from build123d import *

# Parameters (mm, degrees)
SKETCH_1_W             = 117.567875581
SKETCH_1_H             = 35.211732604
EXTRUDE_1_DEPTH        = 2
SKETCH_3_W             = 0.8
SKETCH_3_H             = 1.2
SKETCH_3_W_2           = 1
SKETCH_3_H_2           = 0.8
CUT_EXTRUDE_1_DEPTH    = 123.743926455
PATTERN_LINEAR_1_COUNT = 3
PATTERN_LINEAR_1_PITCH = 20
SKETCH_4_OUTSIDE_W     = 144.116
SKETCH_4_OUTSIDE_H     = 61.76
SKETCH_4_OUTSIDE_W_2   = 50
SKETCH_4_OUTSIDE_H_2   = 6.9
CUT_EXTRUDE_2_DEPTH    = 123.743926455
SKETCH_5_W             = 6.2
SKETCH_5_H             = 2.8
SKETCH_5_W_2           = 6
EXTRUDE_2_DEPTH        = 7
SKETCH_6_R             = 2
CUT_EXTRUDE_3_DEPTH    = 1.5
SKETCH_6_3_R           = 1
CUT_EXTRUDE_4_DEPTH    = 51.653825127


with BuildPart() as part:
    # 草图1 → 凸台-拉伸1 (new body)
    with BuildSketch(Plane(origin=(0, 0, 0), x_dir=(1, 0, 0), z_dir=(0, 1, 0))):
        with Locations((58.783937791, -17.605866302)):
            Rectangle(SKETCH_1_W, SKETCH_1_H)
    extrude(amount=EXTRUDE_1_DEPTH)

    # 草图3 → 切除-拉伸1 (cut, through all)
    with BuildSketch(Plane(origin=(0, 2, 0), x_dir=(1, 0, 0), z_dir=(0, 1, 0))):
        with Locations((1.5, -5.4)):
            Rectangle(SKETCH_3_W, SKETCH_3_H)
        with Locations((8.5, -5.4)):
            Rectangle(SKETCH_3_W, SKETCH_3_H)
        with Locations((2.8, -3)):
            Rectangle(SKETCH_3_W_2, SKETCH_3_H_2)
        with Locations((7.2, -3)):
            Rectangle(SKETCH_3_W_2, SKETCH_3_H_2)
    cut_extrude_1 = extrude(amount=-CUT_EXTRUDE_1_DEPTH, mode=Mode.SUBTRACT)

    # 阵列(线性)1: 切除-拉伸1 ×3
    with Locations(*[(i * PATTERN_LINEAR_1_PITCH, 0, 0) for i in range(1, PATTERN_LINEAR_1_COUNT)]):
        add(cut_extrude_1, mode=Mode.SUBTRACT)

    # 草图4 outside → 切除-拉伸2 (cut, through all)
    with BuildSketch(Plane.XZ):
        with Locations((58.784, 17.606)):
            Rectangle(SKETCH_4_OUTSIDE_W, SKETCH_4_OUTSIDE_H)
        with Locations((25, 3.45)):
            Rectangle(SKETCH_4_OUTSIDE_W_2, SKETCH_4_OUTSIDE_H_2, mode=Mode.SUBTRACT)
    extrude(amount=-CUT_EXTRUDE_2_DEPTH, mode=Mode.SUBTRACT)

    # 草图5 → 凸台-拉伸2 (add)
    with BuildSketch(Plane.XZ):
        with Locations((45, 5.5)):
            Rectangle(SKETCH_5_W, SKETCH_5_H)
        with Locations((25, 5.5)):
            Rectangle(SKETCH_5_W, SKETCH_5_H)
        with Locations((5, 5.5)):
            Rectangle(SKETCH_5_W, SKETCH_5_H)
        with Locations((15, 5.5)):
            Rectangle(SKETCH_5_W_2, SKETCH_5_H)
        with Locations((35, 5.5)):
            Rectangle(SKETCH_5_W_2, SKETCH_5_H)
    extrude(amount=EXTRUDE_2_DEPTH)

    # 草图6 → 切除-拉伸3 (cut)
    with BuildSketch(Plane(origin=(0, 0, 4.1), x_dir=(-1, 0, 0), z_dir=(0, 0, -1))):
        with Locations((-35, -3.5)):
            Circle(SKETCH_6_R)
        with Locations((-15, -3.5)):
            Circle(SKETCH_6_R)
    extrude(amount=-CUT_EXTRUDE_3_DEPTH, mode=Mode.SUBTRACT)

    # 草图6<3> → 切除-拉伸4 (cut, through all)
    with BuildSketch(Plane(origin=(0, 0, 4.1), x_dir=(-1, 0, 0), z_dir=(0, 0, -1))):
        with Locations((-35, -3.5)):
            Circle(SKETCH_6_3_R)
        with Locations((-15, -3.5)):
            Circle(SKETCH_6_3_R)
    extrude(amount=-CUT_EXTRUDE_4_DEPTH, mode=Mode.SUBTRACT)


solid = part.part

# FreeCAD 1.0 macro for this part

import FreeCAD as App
import Part
import Sketcher
from FreeCAD import Vector
Q = App.Units.Quantity


def add_polygon(sketch, points):
    """Adds a closed chain of lines whose ends are joined by coincident constraints."""
    first, n = sketch.GeometryCount, len(points)
    for a, b in zip(points, points[1:] + points[:1]):
        sketch.addGeometry(Part.LineSegment(App.Vector(*a, 0), App.Vector(*b, 0)), False)
    for i in range(n):
        sketch.addConstraint(Sketcher.Constraint("Coincident", first + i, 2, first + (i + 1) % n, 1))

doc = App.newDocument("Part")
body = doc.addObject("PartDesign::Body", "Body")

sketch1 = body.newObject("Sketcher::SketchObject", "Sketch")
sketch1.AttachmentSupport = (doc.getObject("XZ_Plane"), [""])
sketch1.MapMode = "FlatFace"
add_polygon(sketch1, [(0, 0), (0, 35), (118, 35), (118, 0)])
sketch1.addConstraint([
    Sketcher.Constraint("Vertical", 0),
    Sketcher.Constraint("Horizontal", 1),
    Sketcher.Constraint("Vertical", 2),
    Sketcher.Constraint("Horizontal", 3),
    Sketcher.Constraint("Coincident", 3, 2, -1, 1),
    Sketcher.Constraint("DistanceX", 1, 1, 1, 2, Q("117.567876 mm")),
    Sketcher.Constraint("DistanceY", 0, 1, 0, 2, Q("35.211733 mm")),
])
pad1 = body.newObject("PartDesign::Pad", "Pad")
pad1.Profile = sketch1
pad1.Length = 2
pad1.Reversed = True

sketch2 = body.newObject("Sketcher::SketchObject", "Sketch001")
sketch2.AttachmentSupport = (doc.getObject("XZ_Plane"), [""])
sketch2.MapMode = "FlatFace"
sketch2.AttachmentOffset = App.Placement(Vector(0, 0, -2), App.Rotation())
add_polygon(sketch2, [(1.1, 4.8), (1.1, 6), (1.9, 6), (1.9, 4.8)])
add_polygon(sketch2, [(8.1, 4.8), (8.1, 6), (8.9, 6), (8.9, 4.8)])
add_polygon(sketch2, [(2.3, 2.6), (2.3, 3.4), (3.3, 3.4), (3.3, 2.6)])
add_polygon(sketch2, [(6.7, 2.6), (6.7, 3.4), (7.7, 3.4), (7.7, 2.6)])
sketch2.addConstraint([
    Sketcher.Constraint("Vertical", 0),
    Sketcher.Constraint("Horizontal", 1),
    Sketcher.Constraint("Vertical", 2),
    Sketcher.Constraint("Horizontal", 3),
    Sketcher.Constraint("Vertical", 4),
    Sketcher.Constraint("Horizontal", 5),
    Sketcher.Constraint("Vertical", 6),
    Sketcher.Constraint("Horizontal", 7),
    Sketcher.Constraint("Vertical", 8),
    Sketcher.Constraint("Horizontal", 9),
    Sketcher.Constraint("Vertical", 10),
    Sketcher.Constraint("Horizontal", 11),
    Sketcher.Constraint("Vertical", 12),
    Sketcher.Constraint("Horizontal", 13),
    Sketcher.Constraint("Vertical", 14),
    Sketcher.Constraint("Horizontal", 15),
    Sketcher.Constraint("Horizontal", 1, 2, 4, 2),
    Sketcher.Constraint("Horizontal", 3, 2, 6, 2),
    Sketcher.Constraint("Horizontal", 9, 2, 12, 2),
    Sketcher.Constraint("Horizontal", 11, 2, 14, 2),
    Sketcher.Constraint("Equal", 3, 5),
    Sketcher.Constraint("Equal", 11, 13),
    Sketcher.Constraint("Equal", 7, 8),
    Sketcher.Constraint("DistanceX", 9, 1, 9, 2, Q("1 mm")),
    Sketcher.Constraint("DistanceX", 1, 1, 1, 2, Q("0.8 mm")),
    Sketcher.Constraint("DistanceY", 0, 1, 0, 2, Q("1.2 mm")),
    Sketcher.Constraint("DistanceY", -1, 1, 0, 2, Q("6 mm")),
    Sketcher.Constraint("DistanceX", 0, 2, 4, 2, Q("7 mm")),
    Sketcher.Constraint("DistanceX", -1, 1, 0, 2, Q("1.1 mm")),
    Sketcher.Constraint("DistanceX", -1, 1, 8, 2, Q("2.3 mm")),
    Sketcher.Constraint("DistanceY", -1, 1, 8, 2, Q("3.4 mm")),
    Sketcher.Constraint("DistanceX", -1, 1, 12, 2, Q("6.7 mm")),
])
pocket1 = body.newObject("PartDesign::Pocket", "Pocket")
pocket1.Profile = sketch2
pocket1.Type = "ThroughAll"
pocket1.Reversed = True
doc.recompute()

linearpattern = body.newObject("PartDesign::LinearPattern", "LinearPattern")
linearpattern.Originals = [pocket1]
linearpattern.Direction = (doc.getObject("X_Axis"), [""])
linearpattern.Mode = "offset"
linearpattern.Offset = 20
linearpattern.Occurrences = 3
body.Tip = linearpattern

sketch3 = body.newObject("Sketcher::SketchObject", "Sketch002")
sketch3.AttachmentSupport = (doc.getObject("XZ_Plane"), [""])
sketch3.MapMode = "FlatFace"
add_polygon(sketch3, [(-13, 48), (-13, -13), (131, -13), (131, 48)])
add_polygon(sketch3, [(50, 0), (0, 0), (0, 7), (50, 7)])
sketch3.addConstraint([
    Sketcher.Constraint("Vertical", 0),
    Sketcher.Constraint("Horizontal", 1),
    Sketcher.Constraint("Vertical", 2),
    Sketcher.Constraint("Horizontal", 3),
    Sketcher.Constraint("Horizontal", 4),
    Sketcher.Constraint("Vertical", 5),
    Sketcher.Constraint("Horizontal", 6),
    Sketcher.Constraint("Vertical", 7),
    Sketcher.Constraint("Coincident", 4, 2, -1, 1),
    Sketcher.Constraint("DistanceX", 4, 2, 4, 1, Q("50 mm")),
    Sketcher.Constraint("DistanceY", 5, 1, 5, 2, Q("6.9 mm")),
    Sketcher.Constraint("DistanceY", 0, 2, 0, 1, Q("61.76 mm")),
    Sketcher.Constraint("DistanceX", 1, 1, 1, 2, Q("144.116 mm")),
    Sketcher.Constraint("DistanceX", 0, 2, -1, 1, Q("13.274 mm")),
    Sketcher.Constraint("DistanceY", 0, 2, -1, 1, Q("13.274 mm")),
])
pocket2 = body.newObject("PartDesign::Pocket", "Pocket001")
pocket2.Profile = sketch3
pocket2.Type = "ThroughAll"

sketch4 = body.newObject("Sketcher::SketchObject", "Sketch003")
sketch4.AttachmentSupport = (doc.getObject("XZ_Plane"), [""])
sketch4.MapMode = "FlatFace"
add_polygon(sketch4, [(41.9, 6.9), (41.9, 4.1), (48.1, 4.1), (48.1, 6.9)])
add_polygon(sketch4, [(21.9, 6.9), (21.9, 4.1), (28.1, 4.1), (28.1, 6.9)])
add_polygon(sketch4, [(1.9, 6.9), (1.9, 4.1), (8.1, 4.1), (8.1, 6.9)])
add_polygon(sketch4, [(12, 6.9), (12, 4.1), (18, 4.1), (18, 6.9)])
add_polygon(sketch4, [(32, 6.9), (32, 4.1), (38, 4.1), (38, 6.9)])
sketch4.addConstraint([
    Sketcher.Constraint("Vertical", 0),
    Sketcher.Constraint("Horizontal", 1),
    Sketcher.Constraint("Vertical", 2),
    Sketcher.Constraint("Horizontal", 3),
    Sketcher.Constraint("Vertical", 4),
    Sketcher.Constraint("Horizontal", 5),
    Sketcher.Constraint("Vertical", 6),
    Sketcher.Constraint("Horizontal", 7),
    Sketcher.Constraint("Vertical", 8),
    Sketcher.Constraint("Horizontal", 9),
    Sketcher.Constraint("Vertical", 10),
    Sketcher.Constraint("Horizontal", 11),
    Sketcher.Constraint("Vertical", 12),
    Sketcher.Constraint("Horizontal", 13),
    Sketcher.Constraint("Vertical", 14),
    Sketcher.Constraint("Horizontal", 15),
    Sketcher.Constraint("Vertical", 16),
    Sketcher.Constraint("Horizontal", 17),
    Sketcher.Constraint("Vertical", 18),
    Sketcher.Constraint("Horizontal", 19),
    Sketcher.Constraint("Horizontal", 1, 2, 4, 2),
    Sketcher.Constraint("Horizontal", 3, 2, 6, 2),
    Sketcher.Constraint("Horizontal", 5, 2, 8, 2),
    Sketcher.Constraint("Horizontal", 7, 2, 10, 2),
    Sketcher.Constraint("Horizontal", 9, 2, 12, 2),
    Sketcher.Constraint("Horizontal", 11, 2, 14, 2),
    Sketcher.Constraint("Horizontal", 13, 2, 16, 2),
    Sketcher.Constraint("Horizontal", 15, 2, 18, 2),
    Sketcher.Constraint("Equal", 3, 5),
    Sketcher.Constraint("Equal", 7, 9),
    Sketcher.Constraint("Equal", 15, 17),
    Sketcher.Constraint("DistanceX", 13, 1, 13, 2, Q("6 mm")),
    Sketcher.Constraint("DistanceX", 1, 1, 1, 2, Q("6.2 mm")),
    Sketcher.Constraint("DistanceY", 0, 2, 0, 1, Q("2.8 mm")),
    Sketcher.Constraint("DistanceX", -1, 1, 12, 2, Q("12 mm")),
    Sketcher.Constraint("DistanceX", -1, 1, 16, 2, Q("32 mm")),
    Sketcher.Constraint("DistanceX", 4, 2, 0, 2, Q("20 mm")),
    Sketcher.Constraint("DistanceX", 8, 2, 4, 2, Q("20 mm")),
    Sketcher.Constraint("DistanceX", -1, 1, 0, 2, Q("41.9 mm")),
    Sketcher.Constraint("DistanceY", -1, 1, 0, 2, Q("4.1 mm")),
])
pad2 = body.newObject("PartDesign::Pad", "Pad001")
pad2.Profile = sketch4
pad2.Length = 7

sketch5 = body.newObject("Sketcher::SketchObject", "Sketch004")
sketch5.AttachmentSupport = (doc.getObject("XY_Plane"), [""])
sketch5.MapMode = "FlatFace"
sketch5.AttachmentOffset = App.Placement(Vector(0, 0, 4.1), App.Rotation())
sketch5.addGeometry([
    Part.Circle(Vector(35, -3.5, 0), Vector(0, 0, 1), 2),
    Part.Circle(Vector(15, -3.5, 0), Vector(0, 0, 1), 2),
], False)
sketch5.addConstraint([
    Sketcher.Constraint("Equal", 0, 1),
    Sketcher.Constraint("Horizontal", 0, 3, 1, 3),
    Sketcher.Constraint("Diameter", 0, Q("4 mm")),
    Sketcher.Constraint("DistanceX", -1, 1, 0, 3, Q("35 mm")),
    Sketcher.Constraint("DistanceX", -1, 1, 1, 3, Q("15 mm")),
    Sketcher.Constraint("DistanceY", 0, 3, -1, 1, Q("3.5 mm")),
])
pocket3 = body.newObject("PartDesign::Pocket", "Pocket002")
pocket3.Profile = sketch5
pocket3.Length = 1.5
pocket3.Reversed = True

sketch6 = body.newObject("Sketcher::SketchObject", "Sketch005")
sketch6.AttachmentSupport = (doc.getObject("XY_Plane"), [""])
sketch6.MapMode = "FlatFace"
sketch6.AttachmentOffset = App.Placement(Vector(0, 0, 4.1), App.Rotation())
sketch6.addGeometry([
    Part.Circle(Vector(35, -3.5, 0), Vector(0, 0, 1), 1),
    Part.Circle(Vector(15, -3.5, 0), Vector(0, 0, 1), 1),
], False)
sketch6.addConstraint([
    Sketcher.Constraint("Equal", 0, 1),
    Sketcher.Constraint("Horizontal", 0, 3, 1, 3),
    Sketcher.Constraint("Diameter", 0, Q("2 mm")),
    Sketcher.Constraint("DistanceX", -1, 1, 0, 3, Q("35 mm")),
    Sketcher.Constraint("DistanceX", -1, 1, 1, 3, Q("15 mm")),
    Sketcher.Constraint("DistanceY", 0, 3, -1, 1, Q("3.5 mm")),
])
pocket4 = body.newObject("PartDesign::Pocket", "Pocket003")
pocket4.Profile = sketch6
pocket4.Type = "ThroughAll"
pocket4.Reversed = True

doc.recompute()
